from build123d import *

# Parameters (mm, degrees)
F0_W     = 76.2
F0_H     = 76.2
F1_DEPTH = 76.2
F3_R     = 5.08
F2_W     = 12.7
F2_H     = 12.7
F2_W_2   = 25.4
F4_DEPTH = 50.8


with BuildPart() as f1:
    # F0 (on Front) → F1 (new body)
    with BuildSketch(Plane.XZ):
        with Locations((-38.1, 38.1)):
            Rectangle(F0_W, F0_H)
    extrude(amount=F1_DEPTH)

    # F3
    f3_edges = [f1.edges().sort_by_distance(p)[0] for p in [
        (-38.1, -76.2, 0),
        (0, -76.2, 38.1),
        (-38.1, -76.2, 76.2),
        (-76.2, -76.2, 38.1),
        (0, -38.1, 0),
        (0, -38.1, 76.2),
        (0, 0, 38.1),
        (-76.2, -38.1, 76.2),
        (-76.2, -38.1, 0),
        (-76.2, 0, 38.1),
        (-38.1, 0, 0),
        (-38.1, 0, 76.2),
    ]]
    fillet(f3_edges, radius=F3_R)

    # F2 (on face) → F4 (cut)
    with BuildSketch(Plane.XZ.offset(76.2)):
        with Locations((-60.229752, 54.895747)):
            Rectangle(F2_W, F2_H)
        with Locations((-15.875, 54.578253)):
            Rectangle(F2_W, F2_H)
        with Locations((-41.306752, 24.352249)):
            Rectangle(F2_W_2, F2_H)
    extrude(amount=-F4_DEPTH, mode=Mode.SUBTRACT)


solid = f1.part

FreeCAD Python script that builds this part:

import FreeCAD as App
import Part
import Sketcher

V = App.Vector
Q = App.Units.Quantity


def add_polygon(sketch, points):
    """Adds a closed chain of lines whose ends are joined by coincident constraints."""
    first, n = sketch.GeometryCount, len(points)
    for a, b in zip(points, points[1:] + points[:1]):
        sketch.addGeometry(Part.LineSegment(App.Vector(*a, 0), App.Vector(*b, 0)), False)
    for i in range(n):
        sketch.addConstraint(Sketcher.Constraint("Coincident", first + i, 2, first + (i + 1) % n, 1))

doc = App.newDocument("Part")
body = doc.addObject("PartDesign::Body", "Body")

sketch1 = body.newObject("Sketcher::SketchObject", "Sketch")
sketch1.AttachmentSupport = (doc.getObject("XZ_Plane"), [""])
sketch1.MapMode = "FlatFace"
add_polygon(sketch1, [(-76, 76), (-76, 0), (0, 0), (0, 76)])
sketch1.addConstraint(Sketcher.Constraint("Vertical", 0))
sketch1.addConstraint(Sketcher.Constraint("Horizontal", 1))
sketch1.addConstraint(Sketcher.Constraint("Vertical", 2))
sketch1.addConstraint(Sketcher.Constraint("Horizontal", 3))
sketch1.addConstraint(Sketcher.Constraint("Coincident", 1, 2, -1, 1))
sketch1.addConstraint(Sketcher.Constraint("Equal", 3, 0))
sketch1.addConstraint(Sketcher.Constraint("DistanceX", 1, 1, 1, 2, Q("3 in")))
pad1 = body.newObject("PartDesign::Pad", "Pad")
pad1.Profile = sketch1
pad1.Length = Q("3 in")
doc.recompute()

fillet = body.newObject("PartDesign::Fillet", "Fillet")
fillet.Base = (pad1, ["Edge1"])
fillet.UseAllEdges = True
fillet.Radius = Q("0.2 in")

sketch2 = body.newObject("Sketcher::SketchObject", "Sketch001")
sketch2.AttachmentSupport = (doc.getObject("XZ_Plane"), [""])
sketch2.MapMode = "FlatFace"
sketch2.AttachmentOffset = App.Placement(V(0, 0, 3 * 25.4), App.Rotation())
add_polygon(sketch2, [(-67, 61), (-67, 49), (-54, 49), (-54, 61)])
add_polygon(sketch2, [(-22, 61), (-22, 48), (-10, 48), (-10, 61)])
add_polygon(sketch2, [(-54, 31), (-54, 18), (-29, 18), (-29, 31)])
sketch2.addConstraint(Sketcher.Constraint("Vertical", 0))
sketch2.addConstraint(Sketcher.Constraint("Horizontal", 1))
sketch2.addConstraint(Sketcher.Constraint("Vertical", 2))
sketch2.addConstraint(Sketcher.Constraint("Horizontal", 3))
sketch2.addConstraint(Sketcher.Constraint("Vertical", 4))
sketch2.addConstraint(Sketcher.Constraint("Horizontal", 5))
sketch2.addConstraint(Sketcher.Constraint("Vertical", 6))
sketch2.addConstraint(Sketcher.Constraint("Horizontal", 7))
sketch2.addConstraint(Sketcher.Constraint("Vertical", 8))
sketch2.addConstraint(Sketcher.Constraint("Horizontal", 9))
sketch2.addConstraint(Sketcher.Constraint("Vertical", 10))
sketch2.addConstraint(Sketcher.Constraint("Horizontal", 11))
sketch2.addConstraint(Sketcher.Constraint("Equal", 3, 5))
sketch2.addConstraint(Sketcher.Constraint("Equal", 7, 0))
sketch2.addConstraint(Sketcher.Constraint("Equal", 2, 4))
sketch2.addConstraint(Sketcher.Constraint("Equal", 6, 8))
sketch2.addConstraint(Sketcher.Constraint("DistanceX", 9, 1, 9, 2, Q("1 in")))
sketch2.addConstraint(Sketcher.Constraint("DistanceX", 1, 1, 1, 2, Q("0.5 in")))
sketch2.addConstraint(Sketcher.Constraint("DistanceY", 8, 2, 4, 2, Q("1.1900002 in")))
sketch2.addConstraint(Sketcher.Constraint("DistanceX", 4, 2, -1, 1, Q("0.875 in")))
sketch2.addConstraint(Sketcher.Constraint("DistanceX", 8, 2, 1, 2, Q("0.005 in")))
sketch2.addConstraint(Sketcher.Constraint("DistanceY", 8, 2, 1, 2, Q("1.2024999 in")))
sketch2.addConstraint(Sketcher.Constraint("DistanceX", 0, 2, -1, 1, Q("66.579752 mm")))
sketch2.addConstraint(Sketcher.Constraint("DistanceY", -1, 1, 8, 2, Q("18.002249 mm")))
pocket1 = body.newObject("PartDesign::Pocket", "Pocket")
pocket1.Profile = sketch2
pocket1.Length = Q("2 in")

doc.recompute()
